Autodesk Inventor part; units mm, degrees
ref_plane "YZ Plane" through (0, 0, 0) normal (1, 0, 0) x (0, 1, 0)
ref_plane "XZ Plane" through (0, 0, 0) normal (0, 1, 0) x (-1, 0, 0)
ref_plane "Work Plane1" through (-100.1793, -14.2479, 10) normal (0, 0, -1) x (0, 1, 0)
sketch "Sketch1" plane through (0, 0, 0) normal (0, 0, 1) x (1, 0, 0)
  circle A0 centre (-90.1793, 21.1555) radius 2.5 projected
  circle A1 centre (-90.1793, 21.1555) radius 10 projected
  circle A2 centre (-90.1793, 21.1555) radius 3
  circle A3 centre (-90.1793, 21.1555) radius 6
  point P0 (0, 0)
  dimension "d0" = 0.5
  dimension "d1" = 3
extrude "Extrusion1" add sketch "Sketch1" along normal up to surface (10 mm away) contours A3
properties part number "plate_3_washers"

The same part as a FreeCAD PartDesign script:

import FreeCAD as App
import Part
import Sketcher

V = App.Vector

doc = App.newDocument("Part")
body = doc.addObject("PartDesign::Body", "Body")

sketch1 = doc.addObject("Sketcher::SketchObject", "Sketch")
body.addObject(sketch1)
sketch1.AttachmentSupport = (doc.XY_Plane, [""])
sketch1.MapMode = "FlatFace"
sketch1.addGeometry([
    Part.Circle(V(-90.2, 21.2, 0), V(0, 0, 1), 6),
    Part.Circle(V(-90.2, 21.2, 0), V(0, 0, 1), 3),
], False)
sketch1.addConstraint([
    Sketcher.Constraint("Coincident", 1, 3, 0, 3),
    Sketcher.Constraint("Diameter", 1, 6.0),
    Sketcher.Constraint("Diameter", 0, 12.0),
    Sketcher.Constraint("DistanceX", 0, 3, -1, 1, 90.1793),
    Sketcher.Constraint("DistanceY", -1, 1, 0, 3, 21.1555),
])
pad1 = doc.addObject("PartDesign::Pad", "Pad")
body.addObject(pad1)
pad1.Profile = sketch1
pad1.Length = 10

doc.recompute()
